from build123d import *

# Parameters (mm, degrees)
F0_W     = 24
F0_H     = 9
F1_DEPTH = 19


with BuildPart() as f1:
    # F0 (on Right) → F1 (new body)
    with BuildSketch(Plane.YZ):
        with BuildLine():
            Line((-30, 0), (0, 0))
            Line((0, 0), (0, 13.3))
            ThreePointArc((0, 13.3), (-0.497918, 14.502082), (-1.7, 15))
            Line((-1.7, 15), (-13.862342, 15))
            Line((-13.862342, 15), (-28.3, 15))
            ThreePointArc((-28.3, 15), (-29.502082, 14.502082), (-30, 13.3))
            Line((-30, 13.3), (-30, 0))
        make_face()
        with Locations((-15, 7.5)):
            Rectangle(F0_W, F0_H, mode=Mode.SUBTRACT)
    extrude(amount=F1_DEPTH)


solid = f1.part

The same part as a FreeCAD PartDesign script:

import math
import FreeCAD as App
import Part
import Sketcher

V = App.Vector

doc = App.newDocument("Part")
params = doc.addObject("Spreadsheet::Sheet", "Params")
for row, (alias, value) in enumerate([
    ("sketch1_radius", "1.699998 mm"),
    ("sketch1_width", "30 mm"),
    ("sketch1_width2", "24 mm"),
    ("sketch1_height", "9 mm"),
    ("sketch1_height2", "13.3 mm"),
    ("pad1_length", "19 mm"),
], start=1):
    params.set(f"A{row}", alias)
    params.set(f"B{row}", "=" + value)
    params.setAlias(f"B{row}", alias)

body = doc.addObject("PartDesign::Body", "Body")

# Sketch on YZ plane
sketch1 = doc.addObject("Sketcher::SketchObject", "Sketch")
body.addObject(sketch1)
sketch1.AttachmentSupport = (doc.YZ_Plane, [""])
sketch1.MapMode = "FlatFace"
sketch1.addGeometry(Part.LineSegment(V(-30, 0, 0), V(0, 0, 0)), False)
sketch1.addGeometry(Part.LineSegment(V(0, 0, 0), V(0, 13.3, 0)), False)
sketch1.addGeometry(Part.ArcOfCircle(Part.Circle(V(-1.7, 13.3, 0), V(0, 0, 1), 1.7), math.radians(0), math.radians(90)), False)
sketch1.addGeometry(Part.LineSegment(V(-1.7, 15, 0), V(-28.3, 15, 0)), False)
sketch1.addGeometry(Part.ArcOfCircle(Part.Circle(V(-28.3, 13.3, 0), V(0, 0, 1), 1.7), math.radians(90), math.radians(180)), False)
sketch1.addGeometry(Part.LineSegment(V(-30, 13.3, 0), V(-30, 0, 0)), False)
sketch1.addGeometry(Part.LineSegment(V(-3, 3, 0), V(-27, 3, 0)), False)
sketch1.addGeometry(Part.LineSegment(V(-27, 3, 0), V(-27, 12, 0)), False)
sketch1.addGeometry(Part.LineSegment(V(-27, 12, 0), V(-3, 12, 0)), False)
sketch1.addGeometry(Part.LineSegment(V(-3, 12, 0), V(-3, 3, 0)), False)
sketch1.addConstraint(Sketcher.Constraint("Coincident", 0, 2, 1, 1))
sketch1.addConstraint(Sketcher.Constraint("Tangent", 1, 2, 2, 1))
sketch1.addConstraint(Sketcher.Constraint("Tangent", 2, 2, 3, 1))
sketch1.addConstraint(Sketcher.Constraint("Tangent", 3, 2, 4, 1))
sketch1.addConstraint(Sketcher.Constraint("Tangent", 4, 2, 5, 1))
sketch1.addConstraint(Sketcher.Constraint("Coincident", 5, 2, 0, 1))
sketch1.addConstraint(Sketcher.Constraint("Coincident", 6, 2, 7, 1))
sketch1.addConstraint(Sketcher.Constraint("Coincident", 7, 2, 8, 1))
sketch1.addConstraint(Sketcher.Constraint("Coincident", 8, 2, 9, 1))
sketch1.addConstraint(Sketcher.Constraint("Coincident", 9, 2, 6, 1))
sketch1.addConstraint(Sketcher.Constraint("Horizontal", 0))
sketch1.addConstraint(Sketcher.Constraint("Vertical", 1))
sketch1.addConstraint(Sketcher.Constraint("Horizontal", 3))
sketch1.addConstraint(Sketcher.Constraint("Vertical", 5))
sketch1.addConstraint(Sketcher.Constraint("Horizontal", 6))
sketch1.addConstraint(Sketcher.Constraint("Vertical", 7))
sketch1.addConstraint(Sketcher.Constraint("Horizontal", 8))
sketch1.addConstraint(Sketcher.Constraint("Vertical", 9))
sketch1.addConstraint(Sketcher.Constraint("Coincident", 0, 2, -1, 1))
sketch1.addConstraint(Sketcher.Constraint("Equal", 2, 4))
sketch1.addConstraint(Sketcher.Constraint("Radius", 2, 1.699998))
sketch1.addConstraint(Sketcher.Constraint("DistanceX", 0, 1, 0, 2, 30.0))
sketch1.addConstraint(Sketcher.Constraint("DistanceX", 6, 2, 6, 1, 24.0))
sketch1.addConstraint(Sketcher.Constraint("DistanceY", 7, 1, 7, 2, 9.0))
sketch1.addConstraint(Sketcher.Constraint("DistanceY", 1, 1, 1, 2, 13.3))
sketch1.addConstraint(Sketcher.Constraint("DistanceX", 6, 2, -1, 1, 27.0))
sketch1.addConstraint(Sketcher.Constraint("DistanceY", -1, 1, 6, 2, 3.0))
sketch1.setExpression("Constraints[20]", "Params.sketch1_radius")
sketch1.setExpression("Constraints[21]", "Params.sketch1_width")
sketch1.setExpression("Constraints[22]", "Params.sketch1_width2")
sketch1.setExpression("Constraints[23]", "Params.sketch1_height")
sketch1.setExpression("Constraints[24]", "Params.sketch1_height2")
pad1 = doc.addObject("PartDesign::Pad", "Pad")
body.addObject(pad1)
pad1.Profile = sketch1
pad1.setExpression("Length", "Params.pad1_length")

doc.recompute()
